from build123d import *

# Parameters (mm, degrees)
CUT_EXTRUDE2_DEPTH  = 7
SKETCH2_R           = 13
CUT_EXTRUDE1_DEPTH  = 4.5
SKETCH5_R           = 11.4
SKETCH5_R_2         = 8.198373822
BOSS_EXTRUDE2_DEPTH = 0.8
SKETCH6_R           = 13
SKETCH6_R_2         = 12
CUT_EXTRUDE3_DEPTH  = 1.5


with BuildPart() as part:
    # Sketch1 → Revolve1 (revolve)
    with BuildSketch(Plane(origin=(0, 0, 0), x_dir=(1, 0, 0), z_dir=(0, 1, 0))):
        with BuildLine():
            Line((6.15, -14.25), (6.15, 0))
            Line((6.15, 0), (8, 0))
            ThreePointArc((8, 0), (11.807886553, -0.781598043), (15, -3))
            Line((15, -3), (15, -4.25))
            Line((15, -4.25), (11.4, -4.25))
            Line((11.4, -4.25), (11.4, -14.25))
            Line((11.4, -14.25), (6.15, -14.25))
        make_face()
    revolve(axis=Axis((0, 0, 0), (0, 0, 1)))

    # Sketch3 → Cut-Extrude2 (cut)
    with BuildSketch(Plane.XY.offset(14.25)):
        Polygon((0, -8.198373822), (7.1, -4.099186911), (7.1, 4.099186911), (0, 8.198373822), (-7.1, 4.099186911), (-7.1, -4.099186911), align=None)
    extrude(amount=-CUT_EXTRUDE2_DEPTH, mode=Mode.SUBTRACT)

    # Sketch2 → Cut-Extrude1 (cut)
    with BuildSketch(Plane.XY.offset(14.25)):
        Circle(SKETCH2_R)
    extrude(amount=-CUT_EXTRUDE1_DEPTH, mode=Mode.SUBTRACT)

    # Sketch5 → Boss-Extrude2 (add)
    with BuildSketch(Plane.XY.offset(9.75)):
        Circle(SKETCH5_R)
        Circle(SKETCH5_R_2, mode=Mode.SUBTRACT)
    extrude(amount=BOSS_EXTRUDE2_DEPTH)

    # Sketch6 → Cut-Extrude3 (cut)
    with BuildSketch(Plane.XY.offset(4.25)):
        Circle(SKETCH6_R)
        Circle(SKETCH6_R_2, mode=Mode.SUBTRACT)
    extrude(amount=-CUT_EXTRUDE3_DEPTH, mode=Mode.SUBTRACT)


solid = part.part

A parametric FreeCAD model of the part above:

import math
import FreeCAD as App
import Part
import Sketcher
Q = App.Units.Quantity


def add_polygon(sketch, points):
    """Adds a closed chain of lines whose ends are joined by coincident constraints."""
    first, n = sketch.GeometryCount, len(points)
    for a, b in zip(points, points[1:] + points[:1]):
        sketch.addGeometry(Part.LineSegment(App.Vector(*a, 0), App.Vector(*b, 0)), False)
    for i in range(n):
        sketch.addConstraint(Sketcher.Constraint("Coincident", first + i, 2, first + (i + 1) % n, 1))

doc = App.newDocument("Part")
body = doc.addObject("PartDesign::Body", "Body")

sketch1 = body.newObject("Sketcher::SketchObject", "Sketch")
sketch1.AttachmentSupport = (doc.getObject("XZ_Plane"), [""])
sketch1.MapMode = "FlatFace"
sketch1.addGeometry(Part.LineSegment(App.Vector(6.15, 0, 0), App.Vector(6.15, 14.25, 0)), False)
sketch1.addGeometry(Part.LineSegment(App.Vector(6.15, 14.25, 0), App.Vector(11.4, 14.25, 0)), False)
sketch1.addGeometry(Part.LineSegment(App.Vector(11.4, 14.25, 0), App.Vector(11.4, 4.25, 0)), False)
sketch1.addGeometry(Part.LineSegment(App.Vector(11.4, 4.25, 0), App.Vector(15, 4.25, 0)), False)
sketch1.addGeometry(Part.LineSegment(App.Vector(15, 4.25, 0), App.Vector(15, 3, 0)), False)
sketch1.addGeometry(Part.ArcOfCircle(Part.Circle(App.Vector(8, 9.666667, 0), App.Vector(0, 0, 1), 9.666667), math.radians(-90), math.radians(-43.602819)), False)
sketch1.addGeometry(Part.LineSegment(App.Vector(8, 0, 0), App.Vector(6.15, 0, 0)), False)
sketch1.addConstraint(Sketcher.Constraint("Coincident", 0, 2, 1, 1))
sketch1.addConstraint(Sketcher.Constraint("Coincident", 1, 2, 2, 1))
sketch1.addConstraint(Sketcher.Constraint("Coincident", 2, 2, 3, 1))
sketch1.addConstraint(Sketcher.Constraint("Coincident", 3, 2, 4, 1))
sketch1.addConstraint(Sketcher.Constraint("Coincident", 4, 2, 5, 2))
sketch1.addConstraint(Sketcher.Constraint("Tangent", 5, 1, 6, 1))
sketch1.addConstraint(Sketcher.Constraint("Coincident", 6, 2, 0, 1))
sketch1.addConstraint(Sketcher.Constraint("Vertical", 0))
sketch1.addConstraint(Sketcher.Constraint("Horizontal", 1))
sketch1.addConstraint(Sketcher.Constraint("Vertical", 2))
sketch1.addConstraint(Sketcher.Constraint("Horizontal", 3))
sketch1.addConstraint(Sketcher.Constraint("Vertical", 4))
sketch1.addConstraint(Sketcher.Constraint("Horizontal", 6))
sketch1.addConstraint(Sketcher.Constraint("PointOnObject", 5, 1, -1))
sketch1.addConstraint(Sketcher.Constraint("DistanceY", 2, 2, 2, 1, 10.0))
sketch1.addConstraint(Sketcher.Constraint("DistanceX", 3, 1, 3, 2, 3.6))
sketch1.addConstraint(Sketcher.Constraint("DistanceX", -1, 1, 5, 3, 8.0))
sketch1.addConstraint(Sketcher.Constraint("DistanceX", -1, 1, 3, 2, 15.0))
sketch1.addConstraint(Sketcher.Constraint("DistanceY", -1, 1, 4, 2, 3.0))
sketch1.addConstraint(Sketcher.Constraint("DistanceX", 1, 1, 1, 2, 5.25))
sketch1.addConstraint(Sketcher.Constraint("DistanceY", 0, 1, 0, 2, 14.25))
revolution = body.newObject("PartDesign::Revolution", "Revolution")
revolution.Profile = sketch1
revolution.ReferenceAxis = (sketch1, ["V_Axis"])
revolution.Angle = 360

sketch2 = body.newObject("Sketcher::SketchObject", "Sketch001")
sketch2.AttachmentSupport = (doc.getObject("XY_Plane"), [""])
sketch2.MapMode = "FlatFace"
sketch2.AttachmentOffset = App.Placement(App.Vector(0, 0, 14.25), App.Rotation())
add_polygon(sketch2, [(0, -8.198374), (7.1, -4.099187), (7.1, 4.099187), (0, 8.198374), (-7.1, 4.099187), (-7.1, -4.099187)])
sketch2.addConstraint(Sketcher.Constraint("Vertical", 1))
sketch2.addConstraint(Sketcher.Constraint("Vertical", 4))
sketch2.addConstraint(Sketcher.Constraint("Symmetric", 0, 2, 3, 2, -1, 1))
sketch2.addConstraint(Sketcher.Constraint("Symmetric", 2, 2, 5, 2, -1, 1))
sketch2.addConstraint(Sketcher.Constraint("PointOnObject", 2, 2, -2))
sketch2.addConstraint(Sketcher.Constraint("Parallel", 2, 5))
sketch2.addConstraint(Sketcher.Constraint("Horizontal", 1, 2, 3, 2))
sketch2.addConstraint(Sketcher.Constraint("Angle", 0, Q("30 deg")))
sketch2.addConstraint(Sketcher.Constraint("DistanceX", -1, 1, 0, 2, 7.1))
sketch2.addConstraint(Sketcher.Constraint("DistanceY", 1, 1, 1, 2, 8.198374))
pocket1 = body.newObject("PartDesign::Pocket", "Pocket")
pocket1.Profile = sketch2
pocket1.Length = 7

sketch3 = body.newObject("Sketcher::SketchObject", "Sketch002")
sketch3.AttachmentSupport = (doc.getObject("XY_Plane"), [""])
sketch3.MapMode = "FlatFace"
sketch3.AttachmentOffset = App.Placement(App.Vector(0, 0, 14.25), App.Rotation())
sketch3.addGeometry(Part.Circle(App.Vector(0, 0, 0), App.Vector(0, 0, 1), 13), False)
sketch3.addConstraint(Sketcher.Constraint("Coincident", 0, 3, -1, 1))
sketch3.addConstraint(Sketcher.Constraint("Diameter", 0, 26.0))
pocket2 = body.newObject("PartDesign::Pocket", "Pocket001")
pocket2.Profile = sketch3
pocket2.Length = 4.5

sketch4 = body.newObject("Sketcher::SketchObject", "Sketch003")
sketch4.AttachmentSupport = (doc.getObject("XY_Plane"), [""])
sketch4.MapMode = "FlatFace"
sketch4.AttachmentOffset = App.Placement(App.Vector(0, 0, 9.75), App.Rotation())
sketch4.addGeometry(Part.Circle(App.Vector(0, 0, 0), App.Vector(0, 0, 1), 11.4), False)
sketch4.addGeometry(Part.Circle(App.Vector(0, 0, 0), App.Vector(0, 0, 1), 8.198374), False)
sketch4.addConstraint(Sketcher.Constraint("Coincident", 0, 3, -1, 1))
sketch4.addConstraint(Sketcher.Constraint("Coincident", 1, 3, -1, 1))
sketch4.addConstraint(Sketcher.Constraint("Diameter", 0, 22.8))
sketch4.addConstraint(Sketcher.Constraint("Diameter", 1, 16.396748))
pad1 = body.newObject("PartDesign::Pad", "Pad")
pad1.Profile = sketch4
pad1.Length = 0.8

sketch5 = body.newObject("Sketcher::SketchObject", "Sketch004")
sketch5.AttachmentSupport = (doc.getObject("XY_Plane"), [""])
sketch5.MapMode = "FlatFace"
sketch5.AttachmentOffset = App.Placement(App.Vector(0, 0, 4.25), App.Rotation())
sketch5.addGeometry(Part.Circle(App.Vector(0, 0, 0), App.Vector(0, 0, 1), 13), False)
sketch5.addGeometry(Part.Circle(App.Vector(0, 0, 0), App.Vector(0, 0, 1), 12), False)
sketch5.addConstraint(Sketcher.Constraint("Coincident", 0, 3, -1, 1))
sketch5.addConstraint(Sketcher.Constraint("Coincident", 1, 3, -1, 1))
sketch5.addConstraint(Sketcher.Constraint("Diameter", 0, 26.0))
sketch5.addConstraint(Sketcher.Constraint("Diameter", 1, 24.0))
pocket3 = body.newObject("PartDesign::Pocket", "Pocket002")
pocket3.Profile = sketch5
pocket3.Length = 1.5

doc.recompute()
